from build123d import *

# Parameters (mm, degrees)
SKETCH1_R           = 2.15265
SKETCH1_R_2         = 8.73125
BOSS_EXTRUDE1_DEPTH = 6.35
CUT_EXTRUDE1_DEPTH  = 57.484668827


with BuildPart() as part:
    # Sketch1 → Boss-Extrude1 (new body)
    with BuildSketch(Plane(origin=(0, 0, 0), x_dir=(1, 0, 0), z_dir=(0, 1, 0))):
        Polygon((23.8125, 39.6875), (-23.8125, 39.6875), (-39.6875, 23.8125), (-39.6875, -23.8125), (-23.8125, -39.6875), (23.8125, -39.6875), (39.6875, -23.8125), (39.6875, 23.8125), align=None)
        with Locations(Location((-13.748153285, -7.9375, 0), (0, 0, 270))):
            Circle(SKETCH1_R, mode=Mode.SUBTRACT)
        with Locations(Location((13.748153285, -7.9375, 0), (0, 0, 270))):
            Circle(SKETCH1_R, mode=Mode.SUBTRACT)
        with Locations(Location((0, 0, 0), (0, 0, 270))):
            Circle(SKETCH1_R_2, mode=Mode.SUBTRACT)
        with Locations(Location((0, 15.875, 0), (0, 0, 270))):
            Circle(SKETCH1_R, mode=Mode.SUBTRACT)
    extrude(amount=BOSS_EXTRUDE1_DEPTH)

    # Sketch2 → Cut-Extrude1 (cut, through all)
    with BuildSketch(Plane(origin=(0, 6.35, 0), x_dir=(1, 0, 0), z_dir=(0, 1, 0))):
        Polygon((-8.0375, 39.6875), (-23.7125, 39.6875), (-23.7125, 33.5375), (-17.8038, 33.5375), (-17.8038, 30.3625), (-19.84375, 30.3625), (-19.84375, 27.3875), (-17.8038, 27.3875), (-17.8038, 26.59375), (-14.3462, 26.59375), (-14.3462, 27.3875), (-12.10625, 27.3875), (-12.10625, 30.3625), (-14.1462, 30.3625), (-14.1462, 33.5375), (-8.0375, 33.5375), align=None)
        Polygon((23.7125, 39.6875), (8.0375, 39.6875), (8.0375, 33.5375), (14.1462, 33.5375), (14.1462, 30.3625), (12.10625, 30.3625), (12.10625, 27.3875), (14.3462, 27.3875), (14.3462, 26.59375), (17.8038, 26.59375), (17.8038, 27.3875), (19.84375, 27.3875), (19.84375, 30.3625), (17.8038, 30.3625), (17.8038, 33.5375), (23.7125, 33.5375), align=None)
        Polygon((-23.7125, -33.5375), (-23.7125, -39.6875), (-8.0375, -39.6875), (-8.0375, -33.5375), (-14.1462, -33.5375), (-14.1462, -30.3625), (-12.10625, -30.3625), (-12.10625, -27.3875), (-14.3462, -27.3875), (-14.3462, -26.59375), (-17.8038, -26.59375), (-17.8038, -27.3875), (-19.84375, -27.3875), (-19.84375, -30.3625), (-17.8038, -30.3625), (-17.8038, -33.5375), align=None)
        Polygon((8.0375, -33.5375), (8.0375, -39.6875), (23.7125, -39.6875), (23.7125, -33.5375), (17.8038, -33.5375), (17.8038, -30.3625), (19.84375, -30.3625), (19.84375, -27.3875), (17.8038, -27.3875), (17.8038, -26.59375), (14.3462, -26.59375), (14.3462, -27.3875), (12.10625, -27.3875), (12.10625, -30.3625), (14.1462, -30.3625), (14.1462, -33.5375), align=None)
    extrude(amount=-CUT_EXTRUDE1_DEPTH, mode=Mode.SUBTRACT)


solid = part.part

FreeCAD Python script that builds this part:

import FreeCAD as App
import Part
import Sketcher
from FreeCAD import Vector
Q = App.Units.Quantity


def add_polygon(sketch, points):
    """Adds a closed chain of lines whose ends are joined by coincident constraints."""
    first, n = sketch.GeometryCount, len(points)
    for a, b in zip(points, points[1:] + points[:1]):
        sketch.addGeometry(Part.LineSegment(App.Vector(*a, 0), App.Vector(*b, 0)), False)
    for i in range(n):
        sketch.addConstraint(Sketcher.Constraint("Coincident", first + i, 2, first + (i + 1) % n, 1))

doc = App.newDocument("Part")
params = doc.addObject("Spreadsheet::Sheet", "Params")
for row, (alias, value) in enumerate([
    ("sketch1_diameter", "0.6875 in"),
    ("sketch1_width", "1.875 in"),
    ("pad1_length", "0.25 in"),
    ("sketch2_height", "0.125 in"),
    ("sketch2_height2", "0.03125 in"),
], start=1):
    params.set(f"A{row}", alias)
    params.set(f"B{row}", "=" + value)
    params.setAlias(f"B{row}", alias)

body = doc.addObject("PartDesign::Body", "Body")

# Sketch on XZ plane
sketch1 = body.newObject("Sketcher::SketchObject", "Sketch")
sketch1.AttachmentSupport = (doc.getObject("XZ_Plane"), [""])
sketch1.MapMode = "FlatFace"
add_polygon(sketch1, [(23.8125, -39.6875), (-23.8125, -39.6875), (-39.6875, -23.8125), (-39.6875, 23.8125), (-23.8125, 39.6875), (23.8125, 39.6875), (39.6875, 23.8125), (39.6875, -23.8125)])  # lines 0-7
sketch1.addGeometry(Part.Circle(Vector(-13.748153, 7.9375, 0), Vector(0, 0, 1), 2.15265), False)  # 8
sketch1.addGeometry(Part.Circle(Vector(0, 0, 0), Vector(0, 0, 1), 8.73125), False)  # 9
sketch1.addGeometry(Part.Circle(Vector(13.748153, 7.9375, 0), Vector(0, 0, 1), 2.15265), False)  # 10
sketch1.addGeometry(Part.Circle(Vector(0, -15.875, 0), Vector(0, 0, 1), 2.15265), False)  # 11
sketch1.addConstraint(Sketcher.Constraint("Horizontal", 0))
sketch1.addConstraint(Sketcher.Constraint("Vertical", 2))
sketch1.addConstraint(Sketcher.Constraint("Horizontal", 4))
sketch1.addConstraint(Sketcher.Constraint("Vertical", 6))
sketch1.addConstraint(Sketcher.Constraint("Coincident", 9, 3, -1, 1))
sketch1.addConstraint(Sketcher.Constraint("Equal", 8, 10))
sketch1.addConstraint(Sketcher.Constraint("Equal", 10, 11))
sketch1.addConstraint(Sketcher.Constraint("Symmetric", 0, 2, 4, 2, -1, 1))
sketch1.addConstraint(Sketcher.Constraint("Symmetric", 1, 2, 5, 2, -1, 1))
sketch1.addConstraint(Sketcher.Constraint("Symmetric", 8, 3, 10, 3, -2))
sketch1.addConstraint(Sketcher.Constraint("PointOnObject", 11, 3, -2))
sketch1.addConstraint(Sketcher.Constraint("Perpendicular", 1, 3))
sketch1.addConstraint(Sketcher.Constraint("Perpendicular", 5, 7))
sketch1.addConstraint(Sketcher.Constraint("Horizontal", 2, 2, 5, 2))
sketch1.addConstraint(Sketcher.Constraint("Horizontal", 1, 2, 6, 2))
sketch1.addConstraint(Sketcher.Constraint("Vertical", 0, 2, 3, 2))
sketch1.addConstraint(Sketcher.Constraint("Equal", 4, 2))
sketch1.addConstraint(Sketcher.Constraint("Diameter", 9, Q("0.6875 in")))
sketch1.addConstraint(Sketcher.Constraint("Diameter", 8, Q("0.1695 in")))
sketch1.addConstraint(Sketcher.Constraint("DistanceX", 0, 2, 0, 1, Q("1.875 in")))
sketch1.addConstraint(Sketcher.Constraint("DistanceY", 1, 2, 8, 3, Q("1.25 in")))
sketch1.addConstraint(Sketcher.Constraint("DistanceY", 8, 3, 3, 2, Q("1.25 in")))
sketch1.addConstraint(Sketcher.Constraint("DistanceY", 11, 3, -1, 1, Q("0.625 in")))
sketch1.addConstraint(Sketcher.Constraint("DistanceX", 8, 3, -1, 1, Q("13.748153 mm")))
sketch1.setExpression("Constraints[25]", "Params.sketch1_diameter")
sketch1.setExpression("Constraints[27]", "Params.sketch1_width")
pad1 = body.newObject("PartDesign::Pad", "Pad")
pad1.Profile = sketch1
pad1.setExpression("Length", "Params.pad1_length")
pad1.Reversed = True

# Sketch on XZ plane
sketch2 = body.newObject("Sketcher::SketchObject", "Sketch001")
sketch2.AttachmentSupport = (doc.getObject("XZ_Plane"), [""])
sketch2.MapMode = "FlatFace"
sketch2.AttachmentOffset = App.Placement(Vector(0, 0, -0.25 * 25.4), App.Rotation())
add_polygon(sketch2, [(-8.0375, -39.6875), (-23.7125, -39.6875), (-23.7125, -33.5375), (-17.8038, -33.5375), (-17.8038, -30.3625), (-19.84375, -30.3625), (-19.84375, -27.3875), (-17.8038, -27.3875), (-17.8038, -26.59375), (-14.3462, -26.59375), (-14.3462, -27.3875), (-12.10625, -27.3875), (-12.10625, -30.3625), (-14.1462, -30.3625), (-14.1462, -33.5375), (-8.0375, -33.5375)])  # lines 0-15
add_polygon(sketch2, [(23.7125, -39.6875), (8.0375, -39.6875), (8.0375, -33.5375), (14.1462, -33.5375), (14.1462, -30.3625), (12.10625, -30.3625), (12.10625, -27.3875), (14.3462, -27.3875), (14.3462, -26.59375), (17.8038, -26.59375), (17.8038, -27.3875), (19.84375, -27.3875), (19.84375, -30.3625), (17.8038, -30.3625), (17.8038, -33.5375), (23.7125, -33.5375)])  # lines 16-31
add_polygon(sketch2, [(-23.7125, 33.5375), (-23.7125, 39.6875), (-8.0375, 39.6875), (-8.0375, 33.5375), (-14.1462, 33.5375), (-14.1462, 30.3625), (-12.10625, 30.3625), (-12.10625, 27.3875), (-14.3462, 27.3875), (-14.3462, 26.59375), (-17.8038, 26.59375), (-17.8038, 27.3875), (-19.84375, 27.3875), (-19.84375, 30.3625), (-17.8038, 30.3625), (-17.8038, 33.5375)])  # lines 32-47
add_polygon(sketch2, [(8.0375, 33.5375), (8.0375, 39.6875), (23.7125, 39.6875), (23.7125, 33.5375), (17.8038, 33.5375), (17.8038, 30.3625), (19.84375, 30.3625), (19.84375, 27.3875), (17.8038, 27.3875), (17.8038, 26.59375), (14.3462, 26.59375), (14.3462, 27.3875), (12.10625, 27.3875), (12.10625, 30.3625), (14.1462, 30.3625), (14.1462, 33.5375)])  # lines 48-63
sketch2.addConstraint(Sketcher.Constraint("Horizontal", 0))
sketch2.addConstraint(Sketcher.Constraint("Vertical", 1))
sketch2.addConstraint(Sketcher.Constraint("Horizontal", 2))
sketch2.addConstraint(Sketcher.Constraint("Vertical", 3))
sketch2.addConstraint(Sketcher.Constraint("Horizontal", 4))
sketch2.addConstraint(Sketcher.Constraint("Vertical", 5))
sketch2.addConstraint(Sketcher.Constraint("Horizontal", 6))
sketch2.addConstraint(Sketcher.Constraint("Vertical", 7))
sketch2.addConstraint(Sketcher.Constraint("Horizontal", 8))
sketch2.addConstraint(Sketcher.Constraint("Vertical", 9))
sketch2.addConstraint(Sketcher.Constraint("Horizontal", 10))
sketch2.addConstraint(Sketcher.Constraint("Vertical", 11))
sketch2.addConstraint(Sketcher.Constraint("Horizontal", 12))
sketch2.addConstraint(Sketcher.Constraint("Vertical", 13))
sketch2.addConstraint(Sketcher.Constraint("Horizontal", 14))
sketch2.addConstraint(Sketcher.Constraint("Vertical", 15))
sketch2.addConstraint(Sketcher.Constraint("Horizontal", 16))
sketch2.addConstraint(Sketcher.Constraint("Vertical", 17))
sketch2.addConstraint(Sketcher.Constraint("Horizontal", 18))
sketch2.addConstraint(Sketcher.Constraint("Vertical", 19))
sketch2.addConstraint(Sketcher.Constraint("Horizontal", 20))
sketch2.addConstraint(Sketcher.Constraint("Vertical", 21))
sketch2.addConstraint(Sketcher.Constraint("Horizontal", 22))
sketch2.addConstraint(Sketcher.Constraint("Vertical", 23))
sketch2.addConstraint(Sketcher.Constraint("Horizontal", 24))
sketch2.addConstraint(Sketcher.Constraint("Vertical", 25))
sketch2.addConstraint(Sketcher.Constraint("Horizontal", 26))
sketch2.addConstraint(Sketcher.Constraint("Vertical", 27))
sketch2.addConstraint(Sketcher.Constraint("Horizontal", 28))
sketch2.addConstraint(Sketcher.Constraint("Vertical", 29))
sketch2.addConstraint(Sketcher.Constraint("Horizontal", 30))
sketch2.addConstraint(Sketcher.Constraint("Vertical", 31))
sketch2.addConstraint(Sketcher.Constraint("Vertical", 32))
sketch2.addConstraint(Sketcher.Constraint("Horizontal", 33))
sketch2.addConstraint(Sketcher.Constraint("Vertical", 34))
sketch2.addConstraint(Sketcher.Constraint("Horizontal", 35))
sketch2.addConstraint(Sketcher.Constraint("Vertical", 36))
sketch2.addConstraint(Sketcher.Constraint("Horizontal", 37))
sketch2.addConstraint(Sketcher.Constraint("Vertical", 38))
sketch2.addConstraint(Sketcher.Constraint("Horizontal", 39))
sketch2.addConstraint(Sketcher.Constraint("Vertical", 40))
sketch2.addConstraint(Sketcher.Constraint("Horizontal", 41))
sketch2.addConstraint(Sketcher.Constraint("Vertical", 42))
sketch2.addConstraint(Sketcher.Constraint("Horizontal", 43))
sketch2.addConstraint(Sketcher.Constraint("Vertical", 44))
sketch2.addConstraint(Sketcher.Constraint("Horizontal", 45))
sketch2.addConstraint(Sketcher.Constraint("Vertical", 46))
sketch2.addConstraint(Sketcher.Constraint("Horizontal", 47))
sketch2.addConstraint(Sketcher.Constraint("Vertical", 48))
sketch2.addConstraint(Sketcher.Constraint("Horizontal", 49))
sketch2.addConstraint(Sketcher.Constraint("Vertical", 50))
sketch2.addConstraint(Sketcher.Constraint("Horizontal", 51))
sketch2.addConstraint(Sketcher.Constraint("Vertical", 52))
sketch2.addConstraint(Sketcher.Constraint("Horizontal", 53))
sketch2.addConstraint(Sketcher.Constraint("Vertical", 54))
sketch2.addConstraint(Sketcher.Constraint("Horizontal", 55))
sketch2.addConstraint(Sketcher.Constraint("Vertical", 56))
sketch2.addConstraint(Sketcher.Constraint("Horizontal", 57))
sketch2.addConstraint(Sketcher.Constraint("Vertical", 58))
sketch2.addConstraint(Sketcher.Constraint("Horizontal", 59))
sketch2.addConstraint(Sketcher.Constraint("Vertical", 60))
sketch2.addConstraint(Sketcher.Constraint("Horizontal", 61))
sketch2.addConstraint(Sketcher.Constraint("Vertical", 62))
sketch2.addConstraint(Sketcher.Constraint("Horizontal", 63))
sketch2.addConstraint(Sketcher.Constraint("Symmetric", 31, 2, 32, 2, -1, 1))
sketch2.addConstraint(Sketcher.Constraint("Symmetric", 17, 2, 34, 2, -1, 1))
sketch2.addConstraint(Sketcher.Constraint("Symmetric", 19, 2, 36, 2, -1, 1))
sketch2.addConstraint(Sketcher.Constraint("Symmetric", 21, 2, 38, 2, -1, 1))
sketch2.addConstraint(Sketcher.Constraint("Symmetric", 23, 2, 40, 2, -1, 1))
sketch2.addConstraint(Sketcher.Constraint("Symmetric", 25, 2, 42, 2, -1, 1))
sketch2.addConstraint(Sketcher.Constraint("Symmetric", 27, 2, 44, 2, -1, 1))
sketch2.addConstraint(Sketcher.Constraint("Symmetric", 29, 2, 46, 2, -1, 1))
sketch2.addConstraint(Sketcher.Constraint("Symmetric", 15, 2, 48, 2, -1, 1))
sketch2.addConstraint(Sketcher.Constraint("Symmetric", 1, 2, 50, 2, -1, 1))
sketch2.addConstraint(Sketcher.Constraint("Symmetric", 3, 2, 52, 2, -1, 1))
sketch2.addConstraint(Sketcher.Constraint("Symmetric", 5, 2, 54, 2, -1, 1))
sketch2.addConstraint(Sketcher.Constraint("Symmetric", 7, 2, 56, 2, -1, 1))
sketch2.addConstraint(Sketcher.Constraint("Symmetric", 9, 2, 58, 2, -1, 1))
sketch2.addConstraint(Sketcher.Constraint("Symmetric", 11, 2, 60, 2, -1, 1))
sketch2.addConstraint(Sketcher.Constraint("Symmetric", 13, 2, 62, 2, -1, 1))
sketch2.addConstraint(Sketcher.Constraint("Symmetric", 15, 2, 16, 2, -2))
sketch2.addConstraint(Sketcher.Constraint("Symmetric", 13, 2, 18, 2, -2))
sketch2.addConstraint(Sketcher.Constraint("Symmetric", 11, 2, 20, 2, -2))
sketch2.addConstraint(Sketcher.Constraint("Symmetric", 9, 2, 22, 2, -2))
sketch2.addConstraint(Sketcher.Constraint("Symmetric", 7, 2, 24, 2, -2))
sketch2.addConstraint(Sketcher.Constraint("Symmetric", 5, 2, 26, 2, -2))
sketch2.addConstraint(Sketcher.Constraint("Symmetric", 3, 2, 28, 2, -2))
sketch2.addConstraint(Sketcher.Constraint("Symmetric", 1, 2, 30, 2, -2))
sketch2.addConstraint(Sketcher.Constraint("Horizontal", 6, 2, 9, 2))
sketch2.addConstraint(Sketcher.Constraint("Horizontal", 4, 2, 11, 2))
sketch2.addConstraint(Sketcher.Constraint("Horizontal", 2, 2, 13, 2))
sketch2.addConstraint(Sketcher.Constraint("Vertical", 3, 2, 6, 2))
sketch2.addConstraint(Sketcher.Constraint("Equal", 6, 12))
sketch2.addConstraint(Sketcher.Constraint("DistanceY", 3, 1, 3, 2, Q("0.125 in")))
sketch2.addConstraint(Sketcher.Constraint("DistanceY", 7, 1, 7, 2, Q("0.03125 in")))
sketch2.addConstraint(Sketcher.Constraint("DistanceX", 14, 1, 14, 2, Q("0.2405 in")))
sketch2.addConstraint(Sketcher.Constraint("DistanceY", 0, 2, -1, 1, Q("1.5625 in")))
sketch2.addConstraint(Sketcher.Constraint("DistanceX", 4, 2, -1, 1, Q("0.78125 in")))
sketch2.addConstraint(Sketcher.Constraint("DistanceX", 0, 2, 0, 1, Q("15.675 mm")))
sketch2.addConstraint(Sketcher.Constraint("DistanceX", 2, 1, 2, 2, Q("5.9087 mm")))
sketch2.addConstraint(Sketcher.Constraint("DistanceX", 8, 1, 8, 2, Q("3.4576 mm")))
sketch2.addConstraint(Sketcher.Constraint("DistanceY", 1, 1, 1, 2, Q("6.15 mm")))
sketch2.addConstraint(Sketcher.Constraint("DistanceY", 5, 1, 5, 2, Q("2.975 mm")))
sketch2.addConstraint(Sketcher.Constraint("DistanceX", 4, 2, 4, 1, Q("2.03995 mm")))
sketch2.setExpression("Constraints[157]", "Params.sketch2_height")
sketch2.setExpression("Constraints[158]", "Params.sketch2_height2")
pocket1 = body.newObject("PartDesign::Pocket", "Pocket")
pocket1.Profile = sketch2
pocket1.Type = "ThroughAll"
pocket1.Reversed = True

doc.recompute()
